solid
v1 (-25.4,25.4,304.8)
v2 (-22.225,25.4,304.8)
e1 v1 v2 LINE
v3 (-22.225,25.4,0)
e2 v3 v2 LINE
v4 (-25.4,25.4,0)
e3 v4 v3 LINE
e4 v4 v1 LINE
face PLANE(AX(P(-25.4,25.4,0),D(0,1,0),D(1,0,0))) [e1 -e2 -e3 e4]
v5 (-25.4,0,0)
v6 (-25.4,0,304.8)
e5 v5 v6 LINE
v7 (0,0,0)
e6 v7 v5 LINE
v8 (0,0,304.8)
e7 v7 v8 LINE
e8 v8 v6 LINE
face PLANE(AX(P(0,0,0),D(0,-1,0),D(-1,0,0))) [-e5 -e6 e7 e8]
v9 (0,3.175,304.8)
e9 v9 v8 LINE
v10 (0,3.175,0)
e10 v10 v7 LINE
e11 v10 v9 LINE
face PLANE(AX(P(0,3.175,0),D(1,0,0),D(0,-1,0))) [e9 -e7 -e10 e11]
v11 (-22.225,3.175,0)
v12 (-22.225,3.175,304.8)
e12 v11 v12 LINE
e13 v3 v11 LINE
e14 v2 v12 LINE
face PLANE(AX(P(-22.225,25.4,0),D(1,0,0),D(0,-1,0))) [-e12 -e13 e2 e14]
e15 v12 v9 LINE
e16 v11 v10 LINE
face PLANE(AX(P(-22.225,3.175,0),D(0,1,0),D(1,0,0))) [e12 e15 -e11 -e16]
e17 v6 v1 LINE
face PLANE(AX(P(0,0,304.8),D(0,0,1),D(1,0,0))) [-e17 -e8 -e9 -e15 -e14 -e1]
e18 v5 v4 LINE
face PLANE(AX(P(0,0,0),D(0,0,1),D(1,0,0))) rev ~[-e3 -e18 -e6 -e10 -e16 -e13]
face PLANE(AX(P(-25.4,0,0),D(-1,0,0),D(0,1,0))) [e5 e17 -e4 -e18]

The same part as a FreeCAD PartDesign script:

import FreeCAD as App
import Part
import Sketcher
Q = App.Units.Quantity

doc = App.newDocument("Part")
body = doc.addObject("PartDesign::Body", "Body")

sketch1 = doc.addObject("Sketcher::SketchObject", "Sketch")
body.addObject(sketch1)
sketch1.AttachmentSupport = (doc.XY_Plane, [""])
sketch1.MapMode = "FlatFace"
sketch1.addGeometry([
    Part.LineSegment(App.Vector(-25.4, 0, 0), App.Vector(0, 0, 0)),
    Part.LineSegment(App.Vector(0, 0, 0), App.Vector(0, 3.2, 0)),
    Part.LineSegment(App.Vector(0, 3.2, 0), App.Vector(-22.2, 3.2, 0)),
    Part.LineSegment(App.Vector(-22.2, 3.2, 0), App.Vector(-22.2, 25.4, 0)),
    Part.LineSegment(App.Vector(-22.2, 25.4, 0), App.Vector(-25.4, 25.4, 0)),
    Part.LineSegment(App.Vector(-25.4, 25.4, 0), App.Vector(-25.4, 0, 0)),
], False)
sketch1.addConstraint([
    Sketcher.Constraint("Coincident", 0, 2, 1, 1),
    Sketcher.Constraint("Coincident", 1, 2, 2, 1),
    Sketcher.Constraint("Coincident", 2, 2, 3, 1),
    Sketcher.Constraint("Coincident", 3, 2, 4, 1),
    Sketcher.Constraint("Coincident", 4, 2, 5, 1),
    Sketcher.Constraint("Coincident", 5, 2, 0, 1),
    Sketcher.Constraint("Horizontal", 0),
    Sketcher.Constraint("Vertical", 1),
    Sketcher.Constraint("Horizontal", 2),
    Sketcher.Constraint("Vertical", 3),
    Sketcher.Constraint("Horizontal", 4),
    Sketcher.Constraint("Vertical", 5),
    Sketcher.Constraint("Coincident", 0, 2, -1, 1),
    Sketcher.Constraint("Equal", 4, 1),
    Sketcher.Constraint("Equal", 2, 3),
    Sketcher.Constraint("DistanceX", 0, 1, 0, 2, Q("1 in")),
    Sketcher.Constraint("DistanceX", 4, 2, 4, 1, Q("0.125 in")),
])
pad1 = doc.addObject("PartDesign::Pad", "Pad")
body.addObject(pad1)
pad1.Profile = sketch1
pad1.Length = Q("12 in")

doc.recompute()
